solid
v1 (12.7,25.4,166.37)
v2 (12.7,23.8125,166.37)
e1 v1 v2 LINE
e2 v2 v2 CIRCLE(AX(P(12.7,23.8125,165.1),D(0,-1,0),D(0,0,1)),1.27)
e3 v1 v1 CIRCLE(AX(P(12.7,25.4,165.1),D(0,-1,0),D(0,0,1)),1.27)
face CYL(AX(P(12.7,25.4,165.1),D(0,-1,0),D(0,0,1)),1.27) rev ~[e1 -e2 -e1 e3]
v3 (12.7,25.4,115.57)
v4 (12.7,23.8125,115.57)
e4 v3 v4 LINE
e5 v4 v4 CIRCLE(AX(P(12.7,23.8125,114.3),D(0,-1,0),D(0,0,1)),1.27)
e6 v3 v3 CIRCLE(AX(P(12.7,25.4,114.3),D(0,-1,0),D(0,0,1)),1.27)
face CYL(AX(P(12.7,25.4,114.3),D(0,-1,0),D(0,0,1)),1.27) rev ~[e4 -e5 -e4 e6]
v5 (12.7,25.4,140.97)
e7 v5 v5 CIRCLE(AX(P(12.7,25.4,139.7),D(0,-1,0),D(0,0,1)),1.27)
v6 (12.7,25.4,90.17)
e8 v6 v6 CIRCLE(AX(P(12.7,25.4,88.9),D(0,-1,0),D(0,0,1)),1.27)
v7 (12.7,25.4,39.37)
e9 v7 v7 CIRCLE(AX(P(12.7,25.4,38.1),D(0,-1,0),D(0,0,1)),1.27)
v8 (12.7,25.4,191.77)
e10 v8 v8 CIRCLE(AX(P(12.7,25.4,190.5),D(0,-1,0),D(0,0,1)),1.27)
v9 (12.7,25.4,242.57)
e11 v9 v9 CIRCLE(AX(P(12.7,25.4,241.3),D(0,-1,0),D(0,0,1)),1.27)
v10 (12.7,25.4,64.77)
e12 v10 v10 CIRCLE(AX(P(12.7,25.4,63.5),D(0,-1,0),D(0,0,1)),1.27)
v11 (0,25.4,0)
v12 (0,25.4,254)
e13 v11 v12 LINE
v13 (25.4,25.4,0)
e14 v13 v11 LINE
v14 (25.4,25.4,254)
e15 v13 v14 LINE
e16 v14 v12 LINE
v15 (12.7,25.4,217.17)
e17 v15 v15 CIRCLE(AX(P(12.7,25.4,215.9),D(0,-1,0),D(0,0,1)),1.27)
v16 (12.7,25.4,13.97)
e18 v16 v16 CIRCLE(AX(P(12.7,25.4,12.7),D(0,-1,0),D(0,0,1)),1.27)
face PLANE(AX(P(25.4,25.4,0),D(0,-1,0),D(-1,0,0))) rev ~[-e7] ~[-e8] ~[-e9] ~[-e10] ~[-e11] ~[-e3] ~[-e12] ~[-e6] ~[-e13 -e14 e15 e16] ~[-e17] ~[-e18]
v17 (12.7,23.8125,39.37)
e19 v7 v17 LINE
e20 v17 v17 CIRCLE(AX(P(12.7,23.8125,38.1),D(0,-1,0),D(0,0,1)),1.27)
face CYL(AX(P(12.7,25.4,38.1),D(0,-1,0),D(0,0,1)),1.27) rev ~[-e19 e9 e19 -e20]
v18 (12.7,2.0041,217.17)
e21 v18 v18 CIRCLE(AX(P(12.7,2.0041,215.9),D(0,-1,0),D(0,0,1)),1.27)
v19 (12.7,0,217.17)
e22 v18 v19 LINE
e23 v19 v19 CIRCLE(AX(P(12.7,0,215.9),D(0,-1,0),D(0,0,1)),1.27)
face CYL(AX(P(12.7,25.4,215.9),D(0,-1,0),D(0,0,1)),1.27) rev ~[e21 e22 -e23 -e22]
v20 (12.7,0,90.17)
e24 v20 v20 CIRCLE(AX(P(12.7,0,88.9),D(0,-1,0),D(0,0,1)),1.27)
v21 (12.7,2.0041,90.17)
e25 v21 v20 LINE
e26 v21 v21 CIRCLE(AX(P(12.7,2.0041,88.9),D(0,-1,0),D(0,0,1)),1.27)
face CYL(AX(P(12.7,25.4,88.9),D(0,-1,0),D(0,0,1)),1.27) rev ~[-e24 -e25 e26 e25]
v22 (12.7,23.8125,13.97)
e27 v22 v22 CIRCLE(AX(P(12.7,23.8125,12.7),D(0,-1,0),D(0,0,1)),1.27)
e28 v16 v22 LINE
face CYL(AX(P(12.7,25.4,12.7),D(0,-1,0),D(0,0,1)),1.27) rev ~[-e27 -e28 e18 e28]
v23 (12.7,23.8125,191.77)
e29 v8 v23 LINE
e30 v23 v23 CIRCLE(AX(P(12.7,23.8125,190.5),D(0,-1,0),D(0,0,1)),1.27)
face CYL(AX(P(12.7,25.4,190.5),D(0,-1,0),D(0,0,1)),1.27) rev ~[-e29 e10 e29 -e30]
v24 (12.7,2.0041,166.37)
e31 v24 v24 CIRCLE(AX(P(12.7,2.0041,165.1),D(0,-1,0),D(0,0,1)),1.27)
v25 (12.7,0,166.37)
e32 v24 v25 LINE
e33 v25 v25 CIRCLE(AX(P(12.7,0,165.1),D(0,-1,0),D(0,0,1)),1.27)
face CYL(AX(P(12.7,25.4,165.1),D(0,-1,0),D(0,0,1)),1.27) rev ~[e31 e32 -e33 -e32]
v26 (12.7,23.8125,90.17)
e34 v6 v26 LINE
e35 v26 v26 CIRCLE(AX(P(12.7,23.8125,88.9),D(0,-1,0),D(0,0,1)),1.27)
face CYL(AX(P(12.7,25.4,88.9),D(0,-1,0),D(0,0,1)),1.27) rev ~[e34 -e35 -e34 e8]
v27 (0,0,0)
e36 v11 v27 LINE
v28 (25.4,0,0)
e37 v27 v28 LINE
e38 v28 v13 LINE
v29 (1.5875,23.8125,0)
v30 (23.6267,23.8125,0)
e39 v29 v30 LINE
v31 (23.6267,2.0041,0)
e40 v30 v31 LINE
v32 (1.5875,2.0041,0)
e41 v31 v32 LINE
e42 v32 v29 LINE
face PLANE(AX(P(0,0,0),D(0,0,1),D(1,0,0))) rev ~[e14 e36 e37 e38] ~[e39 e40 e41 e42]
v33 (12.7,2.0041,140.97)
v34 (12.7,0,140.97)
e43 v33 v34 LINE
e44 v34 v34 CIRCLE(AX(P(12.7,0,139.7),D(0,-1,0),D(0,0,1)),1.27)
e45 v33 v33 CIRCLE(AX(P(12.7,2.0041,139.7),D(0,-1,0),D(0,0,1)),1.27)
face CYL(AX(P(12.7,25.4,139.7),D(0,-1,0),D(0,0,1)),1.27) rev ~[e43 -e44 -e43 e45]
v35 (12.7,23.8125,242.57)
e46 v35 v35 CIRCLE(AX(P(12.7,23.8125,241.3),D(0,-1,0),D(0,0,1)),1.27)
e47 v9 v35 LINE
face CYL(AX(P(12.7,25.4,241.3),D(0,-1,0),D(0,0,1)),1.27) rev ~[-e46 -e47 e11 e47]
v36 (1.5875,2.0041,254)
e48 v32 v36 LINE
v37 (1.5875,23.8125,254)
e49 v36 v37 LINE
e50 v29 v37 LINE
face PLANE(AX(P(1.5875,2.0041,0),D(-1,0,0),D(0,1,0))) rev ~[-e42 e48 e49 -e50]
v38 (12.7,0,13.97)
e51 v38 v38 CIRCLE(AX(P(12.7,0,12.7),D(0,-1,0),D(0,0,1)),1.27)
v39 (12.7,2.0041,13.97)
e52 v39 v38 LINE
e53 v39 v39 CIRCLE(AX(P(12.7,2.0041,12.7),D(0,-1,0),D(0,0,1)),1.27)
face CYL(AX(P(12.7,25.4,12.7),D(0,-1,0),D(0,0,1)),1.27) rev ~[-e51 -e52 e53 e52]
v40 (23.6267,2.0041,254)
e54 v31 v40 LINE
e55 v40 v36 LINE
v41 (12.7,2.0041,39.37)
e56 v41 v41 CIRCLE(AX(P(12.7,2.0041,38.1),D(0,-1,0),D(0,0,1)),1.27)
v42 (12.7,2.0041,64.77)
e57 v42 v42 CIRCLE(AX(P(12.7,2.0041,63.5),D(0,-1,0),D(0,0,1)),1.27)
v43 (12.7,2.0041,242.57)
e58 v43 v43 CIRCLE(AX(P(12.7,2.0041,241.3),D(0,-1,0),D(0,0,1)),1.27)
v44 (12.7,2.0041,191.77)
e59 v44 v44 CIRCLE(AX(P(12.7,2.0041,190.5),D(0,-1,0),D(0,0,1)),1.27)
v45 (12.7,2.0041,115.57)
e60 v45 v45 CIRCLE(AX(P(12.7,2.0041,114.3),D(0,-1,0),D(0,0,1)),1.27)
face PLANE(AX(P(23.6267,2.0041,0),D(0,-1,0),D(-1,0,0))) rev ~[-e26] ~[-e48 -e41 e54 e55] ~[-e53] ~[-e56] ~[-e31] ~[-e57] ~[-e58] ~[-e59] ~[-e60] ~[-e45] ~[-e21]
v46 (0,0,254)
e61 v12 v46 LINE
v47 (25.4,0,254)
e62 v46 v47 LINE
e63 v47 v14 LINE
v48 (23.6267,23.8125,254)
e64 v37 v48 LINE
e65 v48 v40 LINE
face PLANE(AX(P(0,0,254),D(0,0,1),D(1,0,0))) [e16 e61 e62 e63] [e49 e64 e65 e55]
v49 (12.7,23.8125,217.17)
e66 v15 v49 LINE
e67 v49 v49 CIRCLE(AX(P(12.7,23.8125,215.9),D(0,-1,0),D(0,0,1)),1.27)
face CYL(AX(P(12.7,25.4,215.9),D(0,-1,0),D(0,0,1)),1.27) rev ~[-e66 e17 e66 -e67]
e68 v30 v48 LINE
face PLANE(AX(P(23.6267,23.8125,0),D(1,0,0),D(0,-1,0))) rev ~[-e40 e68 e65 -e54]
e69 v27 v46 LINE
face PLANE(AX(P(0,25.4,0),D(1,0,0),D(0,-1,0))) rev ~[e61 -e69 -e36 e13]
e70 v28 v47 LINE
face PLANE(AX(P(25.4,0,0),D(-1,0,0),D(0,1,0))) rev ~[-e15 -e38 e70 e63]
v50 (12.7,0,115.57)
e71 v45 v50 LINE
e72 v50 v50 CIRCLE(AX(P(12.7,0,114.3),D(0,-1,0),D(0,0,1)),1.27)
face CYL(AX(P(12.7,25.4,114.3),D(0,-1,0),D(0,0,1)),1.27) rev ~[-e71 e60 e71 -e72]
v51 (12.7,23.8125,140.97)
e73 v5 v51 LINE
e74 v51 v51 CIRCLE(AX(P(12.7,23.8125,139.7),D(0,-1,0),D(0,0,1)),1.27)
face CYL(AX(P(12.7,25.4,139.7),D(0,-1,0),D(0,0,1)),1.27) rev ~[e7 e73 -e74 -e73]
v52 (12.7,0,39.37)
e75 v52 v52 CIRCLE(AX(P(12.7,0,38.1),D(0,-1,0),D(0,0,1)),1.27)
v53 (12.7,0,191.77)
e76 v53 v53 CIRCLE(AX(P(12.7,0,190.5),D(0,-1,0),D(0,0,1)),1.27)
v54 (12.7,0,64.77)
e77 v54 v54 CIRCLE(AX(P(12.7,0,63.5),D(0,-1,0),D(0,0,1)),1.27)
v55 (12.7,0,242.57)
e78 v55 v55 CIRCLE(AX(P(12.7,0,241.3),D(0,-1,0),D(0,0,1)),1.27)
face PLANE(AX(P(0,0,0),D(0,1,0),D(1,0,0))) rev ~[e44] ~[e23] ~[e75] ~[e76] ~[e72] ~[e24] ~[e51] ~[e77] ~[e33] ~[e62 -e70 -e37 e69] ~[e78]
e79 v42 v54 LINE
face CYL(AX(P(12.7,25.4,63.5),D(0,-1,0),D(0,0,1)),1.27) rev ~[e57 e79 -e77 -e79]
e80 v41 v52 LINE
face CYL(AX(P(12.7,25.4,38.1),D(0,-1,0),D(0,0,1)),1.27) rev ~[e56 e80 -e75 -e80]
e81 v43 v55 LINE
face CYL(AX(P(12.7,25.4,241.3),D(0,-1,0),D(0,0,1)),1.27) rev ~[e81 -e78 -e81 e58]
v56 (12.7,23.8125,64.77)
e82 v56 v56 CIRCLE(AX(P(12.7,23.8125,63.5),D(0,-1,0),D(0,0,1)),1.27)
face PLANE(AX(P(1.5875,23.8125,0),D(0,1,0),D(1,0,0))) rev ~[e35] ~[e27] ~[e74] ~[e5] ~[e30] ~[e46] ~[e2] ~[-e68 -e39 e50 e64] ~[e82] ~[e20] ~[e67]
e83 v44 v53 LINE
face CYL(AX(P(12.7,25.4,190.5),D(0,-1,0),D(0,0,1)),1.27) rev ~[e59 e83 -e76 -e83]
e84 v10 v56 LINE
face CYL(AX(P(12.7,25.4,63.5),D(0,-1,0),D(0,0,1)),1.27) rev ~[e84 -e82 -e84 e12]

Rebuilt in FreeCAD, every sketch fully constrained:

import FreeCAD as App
import Part
import Sketcher
Q = App.Units.Quantity

doc = App.newDocument("Part")
body = doc.addObject("PartDesign::Body", "Body")

# Sketch on XY plane
sketch1 = doc.addObject("Sketcher::SketchObject", "Sketch")
body.addObject(sketch1)
sketch1.AttachmentSupport = (doc.XY_Plane, [""])
sketch1.MapMode = "FlatFace"
sketch1.addGeometry(Part.LineSegment(App.Vector(0, 25, 0), App.Vector(0, 0, 0)), False)
sketch1.addGeometry(Part.LineSegment(App.Vector(0, 0, 0), App.Vector(25, 0, 0)), False)
sketch1.addGeometry(Part.LineSegment(App.Vector(25, 0, 0), App.Vector(25, 25, 0)), False)
sketch1.addGeometry(Part.LineSegment(App.Vector(25, 25, 0), App.Vector(0, 25, 0)), False)
sketch1.addGeometry(Part.LineSegment(App.Vector(2, 2, 0), App.Vector(2, 24, 0)), False)
sketch1.addGeometry(Part.LineSegment(App.Vector(2, 24, 0), App.Vector(24, 24, 0)), False)
sketch1.addGeometry(Part.LineSegment(App.Vector(24, 24, 0), App.Vector(24, 2, 0)), False)
sketch1.addGeometry(Part.LineSegment(App.Vector(24, 2, 0), App.Vector(2, 2, 0)), False)
sketch1.addConstraint(Sketcher.Constraint("Coincident", 0, 2, 1, 1))
sketch1.addConstraint(Sketcher.Constraint("Coincident", 1, 2, 2, 1))
sketch1.addConstraint(Sketcher.Constraint("Coincident", 2, 2, 3, 1))
sketch1.addConstraint(Sketcher.Constraint("Coincident", 3, 2, 0, 1))
sketch1.addConstraint(Sketcher.Constraint("Coincident", 4, 2, 5, 1))
sketch1.addConstraint(Sketcher.Constraint("Coincident", 5, 2, 6, 1))
sketch1.addConstraint(Sketcher.Constraint("Coincident", 6, 2, 7, 1))
sketch1.addConstraint(Sketcher.Constraint("Coincident", 7, 2, 4, 1))
sketch1.addConstraint(Sketcher.Constraint("Vertical", 0))
sketch1.addConstraint(Sketcher.Constraint("Horizontal", 1))
sketch1.addConstraint(Sketcher.Constraint("Vertical", 2))
sketch1.addConstraint(Sketcher.Constraint("Horizontal", 3))
sketch1.addConstraint(Sketcher.Constraint("Vertical", 4))
sketch1.addConstraint(Sketcher.Constraint("Horizontal", 5))
sketch1.addConstraint(Sketcher.Constraint("Vertical", 6))
sketch1.addConstraint(Sketcher.Constraint("Horizontal", 7))
sketch1.addConstraint(Sketcher.Constraint("Coincident", 0, 2, -1, 1))
sketch1.addConstraint(Sketcher.Constraint("Equal", 3, 0))
sketch1.addConstraint(Sketcher.Constraint("DistanceX", 1, 1, 1, 2, Q("1 in")))
sketch1.addConstraint(Sketcher.Constraint("DistanceX", -1, 1, 4, 2, Q("0.0625 in")))
sketch1.addConstraint(Sketcher.Constraint("DistanceY", 4, 2, 3, 2, Q("0.0625 in")))
sketch1.addConstraint(Sketcher.Constraint("DistanceY", 4, 1, 4, 2, Q("0.8586 in")))
sketch1.addConstraint(Sketcher.Constraint("DistanceX", 5, 1, 5, 2, 22.0392))
pad1 = doc.addObject("PartDesign::Pad", "Pad")
body.addObject(pad1)
pad1.Profile = sketch1
pad1.Length = Q("10 in")

# Sketch on XZ plane
sketch2 = doc.addObject("Sketcher::SketchObject", "Sketch001")
body.addObject(sketch2)
sketch2.AttachmentSupport = (doc.XZ_Plane, [""])
sketch2.MapMode = "FlatFace"
sketch2.AttachmentOffset = App.Placement(App.Vector(0, 0, -1 * 25.4), App.Rotation())
sketch2.addGeometry(Part.Circle(App.Vector(12.7, 12.7, 0), App.Vector(0, 0, 1), 1.3), False)
sketch2.addGeometry(Part.Circle(App.Vector(12.7, 38.1, 0), App.Vector(0, 0, 1), 1.3), False)
sketch2.addGeometry(Part.Circle(App.Vector(12.7, 63.5, 0), App.Vector(0, 0, 1), 1.3), False)
sketch2.addGeometry(Part.Circle(App.Vector(12.7, 88.9, 0), App.Vector(0, 0, 1), 1.3), False)
sketch2.addGeometry(Part.Circle(App.Vector(12.7, 114.3, 0), App.Vector(0, 0, 1), 1.3), False)
sketch2.addGeometry(Part.Circle(App.Vector(12.7, 139.7, 0), App.Vector(0, 0, 1), 1.3), False)
sketch2.addGeometry(Part.Circle(App.Vector(12.7, 165.1, 0), App.Vector(0, 0, 1), 1.3), False)
sketch2.addGeometry(Part.Circle(App.Vector(12.7, 190.5, 0), App.Vector(0, 0, 1), 1.3), False)
sketch2.addGeometry(Part.Circle(App.Vector(12.7, 215.9, 0), App.Vector(0, 0, 1), 1.3), False)
sketch2.addGeometry(Part.Circle(App.Vector(12.7, 241.3, 0), App.Vector(0, 0, 1), 1.3), False)
sketch2.addGeometry(Part.Circle(App.Vector(12.7, 266.7, 0), App.Vector(0, 0, 1), 1.3), False)
sketch2.addGeometry(Part.Circle(App.Vector(12.7, 292.1, 0), App.Vector(0, 0, 1), 1.3), False)
sketch2.addGeometry(Part.Circle(App.Vector(12.7, 317.5, 0), App.Vector(0, 0, 1), 1.3), False)
sketch2.addGeometry(Part.Circle(App.Vector(12.7, 342.9, 0), App.Vector(0, 0, 1), 1.3), False)
sketch2.addGeometry(Part.Circle(App.Vector(12.7, 368.3, 0), App.Vector(0, 0, 1), 1.3), False)
sketch2.addConstraint(Sketcher.Constraint("Equal", 0, 1))
sketch2.addConstraint(Sketcher.Constraint("Equal", 1, 2))
sketch2.addConstraint(Sketcher.Constraint("Equal", 2, 3))
sketch2.addConstraint(Sketcher.Constraint("Equal", 3, 4))
sketch2.addConstraint(Sketcher.Constraint("Equal", 4, 5))
sketch2.addConstraint(Sketcher.Constraint("Equal", 5, 6))
sketch2.addConstraint(Sketcher.Constraint("Equal", 6, 7))
sketch2.addConstraint(Sketcher.Constraint("Equal", 7, 8))
sketch2.addConstraint(Sketcher.Constraint("Equal", 8, 9))
sketch2.addConstraint(Sketcher.Constraint("Equal", 9, 10))
sketch2.addConstraint(Sketcher.Constraint("Equal", 10, 11))
sketch2.addConstraint(Sketcher.Constraint("Equal", 11, 12))
sketch2.addConstraint(Sketcher.Constraint("Equal", 12, 13))
sketch2.addConstraint(Sketcher.Constraint("Equal", 13, 14))
sketch2.addConstraint(Sketcher.Constraint("Vertical", 0, 3, 1, 3))
sketch2.addConstraint(Sketcher.Constraint("Vertical", 1, 3, 2, 3))
sketch2.addConstraint(Sketcher.Constraint("Vertical", 2, 3, 3, 3))
sketch2.addConstraint(Sketcher.Constraint("Vertical", 3, 3, 4, 3))
sketch2.addConstraint(Sketcher.Constraint("Vertical", 4, 3, 5, 3))
sketch2.addConstraint(Sketcher.Constraint("Vertical", 5, 3, 6, 3))
sketch2.addConstraint(Sketcher.Constraint("Vertical", 6, 3, 7, 3))
sketch2.addConstraint(Sketcher.Constraint("Vertical", 7, 3, 8, 3))
sketch2.addConstraint(Sketcher.Constraint("Vertical", 8, 3, 9, 3))
sketch2.addConstraint(Sketcher.Constraint("Vertical", 9, 3, 10, 3))
sketch2.addConstraint(Sketcher.Constraint("Vertical", 10, 3, 11, 3))
sketch2.addConstraint(Sketcher.Constraint("Vertical", 11, 3, 12, 3))
sketch2.addConstraint(Sketcher.Constraint("Vertical", 12, 3, 13, 3))
sketch2.addConstraint(Sketcher.Constraint("Vertical", 13, 3, 14, 3))
sketch2.addConstraint(Sketcher.Constraint("Diameter", 0, Q("0.1 in")))
sketch2.addConstraint(Sketcher.Constraint("DistanceY", 0, 3, 1, 3, Q("1 in")))
sketch2.addConstraint(Sketcher.Constraint("DistanceY", 1, 3, 2, 3, Q("1 in")))
sketch2.addConstraint(Sketcher.Constraint("DistanceY", 2, 3, 3, 3, Q("1 in")))
sketch2.addConstraint(Sketcher.Constraint("DistanceY", 3, 3, 4, 3, Q("1 in")))
sketch2.addConstraint(Sketcher.Constraint("DistanceY", 4, 3, 5, 3, Q("1 in")))
sketch2.addConstraint(Sketcher.Constraint("DistanceY", 5, 3, 6, 3, Q("1 in")))
sketch2.addConstraint(Sketcher.Constraint("DistanceY", 6, 3, 7, 3, Q("1 in")))
sketch2.addConstraint(Sketcher.Constraint("DistanceY", 7, 3, 8, 3, Q("1 in")))
sketch2.addConstraint(Sketcher.Constraint("DistanceY", 8, 3, 9, 3, Q("1 in")))
sketch2.addConstraint(Sketcher.Constraint("DistanceY", 9, 3, 10, 3, Q("1 in")))
sketch2.addConstraint(Sketcher.Constraint("DistanceY", 10, 3, 11, 3, Q("1 in")))
sketch2.addConstraint(Sketcher.Constraint("DistanceY", 11, 3, 12, 3, Q("1 in")))
sketch2.addConstraint(Sketcher.Constraint("DistanceY", 12, 3, 13, 3, Q("1 in")))
sketch2.addConstraint(Sketcher.Constraint("DistanceY", 13, 3, 14, 3, Q("1 in")))
sketch2.addConstraint(Sketcher.Constraint("DistanceX", -1, 1, 0, 3, Q("0.5 in")))
sketch2.addConstraint(Sketcher.Constraint("DistanceY", -1, 1, 0, 3, Q("0.5 in")))
doc.recompute()
hole = doc.addObject("PartDesign::Hole", "Hole")
body.addObject(hole)
hole.Profile = sketch2
hole.ThreadType = "None"
hole.Diameter = Q("0.1 in")
hole.DepthType = "Dimension"
hole.Depth = Q("1 in")
hole.DrillPoint = "Angled"
hole.DrillPointAngle = 118
hole.Reversed = True

doc.recompute()
